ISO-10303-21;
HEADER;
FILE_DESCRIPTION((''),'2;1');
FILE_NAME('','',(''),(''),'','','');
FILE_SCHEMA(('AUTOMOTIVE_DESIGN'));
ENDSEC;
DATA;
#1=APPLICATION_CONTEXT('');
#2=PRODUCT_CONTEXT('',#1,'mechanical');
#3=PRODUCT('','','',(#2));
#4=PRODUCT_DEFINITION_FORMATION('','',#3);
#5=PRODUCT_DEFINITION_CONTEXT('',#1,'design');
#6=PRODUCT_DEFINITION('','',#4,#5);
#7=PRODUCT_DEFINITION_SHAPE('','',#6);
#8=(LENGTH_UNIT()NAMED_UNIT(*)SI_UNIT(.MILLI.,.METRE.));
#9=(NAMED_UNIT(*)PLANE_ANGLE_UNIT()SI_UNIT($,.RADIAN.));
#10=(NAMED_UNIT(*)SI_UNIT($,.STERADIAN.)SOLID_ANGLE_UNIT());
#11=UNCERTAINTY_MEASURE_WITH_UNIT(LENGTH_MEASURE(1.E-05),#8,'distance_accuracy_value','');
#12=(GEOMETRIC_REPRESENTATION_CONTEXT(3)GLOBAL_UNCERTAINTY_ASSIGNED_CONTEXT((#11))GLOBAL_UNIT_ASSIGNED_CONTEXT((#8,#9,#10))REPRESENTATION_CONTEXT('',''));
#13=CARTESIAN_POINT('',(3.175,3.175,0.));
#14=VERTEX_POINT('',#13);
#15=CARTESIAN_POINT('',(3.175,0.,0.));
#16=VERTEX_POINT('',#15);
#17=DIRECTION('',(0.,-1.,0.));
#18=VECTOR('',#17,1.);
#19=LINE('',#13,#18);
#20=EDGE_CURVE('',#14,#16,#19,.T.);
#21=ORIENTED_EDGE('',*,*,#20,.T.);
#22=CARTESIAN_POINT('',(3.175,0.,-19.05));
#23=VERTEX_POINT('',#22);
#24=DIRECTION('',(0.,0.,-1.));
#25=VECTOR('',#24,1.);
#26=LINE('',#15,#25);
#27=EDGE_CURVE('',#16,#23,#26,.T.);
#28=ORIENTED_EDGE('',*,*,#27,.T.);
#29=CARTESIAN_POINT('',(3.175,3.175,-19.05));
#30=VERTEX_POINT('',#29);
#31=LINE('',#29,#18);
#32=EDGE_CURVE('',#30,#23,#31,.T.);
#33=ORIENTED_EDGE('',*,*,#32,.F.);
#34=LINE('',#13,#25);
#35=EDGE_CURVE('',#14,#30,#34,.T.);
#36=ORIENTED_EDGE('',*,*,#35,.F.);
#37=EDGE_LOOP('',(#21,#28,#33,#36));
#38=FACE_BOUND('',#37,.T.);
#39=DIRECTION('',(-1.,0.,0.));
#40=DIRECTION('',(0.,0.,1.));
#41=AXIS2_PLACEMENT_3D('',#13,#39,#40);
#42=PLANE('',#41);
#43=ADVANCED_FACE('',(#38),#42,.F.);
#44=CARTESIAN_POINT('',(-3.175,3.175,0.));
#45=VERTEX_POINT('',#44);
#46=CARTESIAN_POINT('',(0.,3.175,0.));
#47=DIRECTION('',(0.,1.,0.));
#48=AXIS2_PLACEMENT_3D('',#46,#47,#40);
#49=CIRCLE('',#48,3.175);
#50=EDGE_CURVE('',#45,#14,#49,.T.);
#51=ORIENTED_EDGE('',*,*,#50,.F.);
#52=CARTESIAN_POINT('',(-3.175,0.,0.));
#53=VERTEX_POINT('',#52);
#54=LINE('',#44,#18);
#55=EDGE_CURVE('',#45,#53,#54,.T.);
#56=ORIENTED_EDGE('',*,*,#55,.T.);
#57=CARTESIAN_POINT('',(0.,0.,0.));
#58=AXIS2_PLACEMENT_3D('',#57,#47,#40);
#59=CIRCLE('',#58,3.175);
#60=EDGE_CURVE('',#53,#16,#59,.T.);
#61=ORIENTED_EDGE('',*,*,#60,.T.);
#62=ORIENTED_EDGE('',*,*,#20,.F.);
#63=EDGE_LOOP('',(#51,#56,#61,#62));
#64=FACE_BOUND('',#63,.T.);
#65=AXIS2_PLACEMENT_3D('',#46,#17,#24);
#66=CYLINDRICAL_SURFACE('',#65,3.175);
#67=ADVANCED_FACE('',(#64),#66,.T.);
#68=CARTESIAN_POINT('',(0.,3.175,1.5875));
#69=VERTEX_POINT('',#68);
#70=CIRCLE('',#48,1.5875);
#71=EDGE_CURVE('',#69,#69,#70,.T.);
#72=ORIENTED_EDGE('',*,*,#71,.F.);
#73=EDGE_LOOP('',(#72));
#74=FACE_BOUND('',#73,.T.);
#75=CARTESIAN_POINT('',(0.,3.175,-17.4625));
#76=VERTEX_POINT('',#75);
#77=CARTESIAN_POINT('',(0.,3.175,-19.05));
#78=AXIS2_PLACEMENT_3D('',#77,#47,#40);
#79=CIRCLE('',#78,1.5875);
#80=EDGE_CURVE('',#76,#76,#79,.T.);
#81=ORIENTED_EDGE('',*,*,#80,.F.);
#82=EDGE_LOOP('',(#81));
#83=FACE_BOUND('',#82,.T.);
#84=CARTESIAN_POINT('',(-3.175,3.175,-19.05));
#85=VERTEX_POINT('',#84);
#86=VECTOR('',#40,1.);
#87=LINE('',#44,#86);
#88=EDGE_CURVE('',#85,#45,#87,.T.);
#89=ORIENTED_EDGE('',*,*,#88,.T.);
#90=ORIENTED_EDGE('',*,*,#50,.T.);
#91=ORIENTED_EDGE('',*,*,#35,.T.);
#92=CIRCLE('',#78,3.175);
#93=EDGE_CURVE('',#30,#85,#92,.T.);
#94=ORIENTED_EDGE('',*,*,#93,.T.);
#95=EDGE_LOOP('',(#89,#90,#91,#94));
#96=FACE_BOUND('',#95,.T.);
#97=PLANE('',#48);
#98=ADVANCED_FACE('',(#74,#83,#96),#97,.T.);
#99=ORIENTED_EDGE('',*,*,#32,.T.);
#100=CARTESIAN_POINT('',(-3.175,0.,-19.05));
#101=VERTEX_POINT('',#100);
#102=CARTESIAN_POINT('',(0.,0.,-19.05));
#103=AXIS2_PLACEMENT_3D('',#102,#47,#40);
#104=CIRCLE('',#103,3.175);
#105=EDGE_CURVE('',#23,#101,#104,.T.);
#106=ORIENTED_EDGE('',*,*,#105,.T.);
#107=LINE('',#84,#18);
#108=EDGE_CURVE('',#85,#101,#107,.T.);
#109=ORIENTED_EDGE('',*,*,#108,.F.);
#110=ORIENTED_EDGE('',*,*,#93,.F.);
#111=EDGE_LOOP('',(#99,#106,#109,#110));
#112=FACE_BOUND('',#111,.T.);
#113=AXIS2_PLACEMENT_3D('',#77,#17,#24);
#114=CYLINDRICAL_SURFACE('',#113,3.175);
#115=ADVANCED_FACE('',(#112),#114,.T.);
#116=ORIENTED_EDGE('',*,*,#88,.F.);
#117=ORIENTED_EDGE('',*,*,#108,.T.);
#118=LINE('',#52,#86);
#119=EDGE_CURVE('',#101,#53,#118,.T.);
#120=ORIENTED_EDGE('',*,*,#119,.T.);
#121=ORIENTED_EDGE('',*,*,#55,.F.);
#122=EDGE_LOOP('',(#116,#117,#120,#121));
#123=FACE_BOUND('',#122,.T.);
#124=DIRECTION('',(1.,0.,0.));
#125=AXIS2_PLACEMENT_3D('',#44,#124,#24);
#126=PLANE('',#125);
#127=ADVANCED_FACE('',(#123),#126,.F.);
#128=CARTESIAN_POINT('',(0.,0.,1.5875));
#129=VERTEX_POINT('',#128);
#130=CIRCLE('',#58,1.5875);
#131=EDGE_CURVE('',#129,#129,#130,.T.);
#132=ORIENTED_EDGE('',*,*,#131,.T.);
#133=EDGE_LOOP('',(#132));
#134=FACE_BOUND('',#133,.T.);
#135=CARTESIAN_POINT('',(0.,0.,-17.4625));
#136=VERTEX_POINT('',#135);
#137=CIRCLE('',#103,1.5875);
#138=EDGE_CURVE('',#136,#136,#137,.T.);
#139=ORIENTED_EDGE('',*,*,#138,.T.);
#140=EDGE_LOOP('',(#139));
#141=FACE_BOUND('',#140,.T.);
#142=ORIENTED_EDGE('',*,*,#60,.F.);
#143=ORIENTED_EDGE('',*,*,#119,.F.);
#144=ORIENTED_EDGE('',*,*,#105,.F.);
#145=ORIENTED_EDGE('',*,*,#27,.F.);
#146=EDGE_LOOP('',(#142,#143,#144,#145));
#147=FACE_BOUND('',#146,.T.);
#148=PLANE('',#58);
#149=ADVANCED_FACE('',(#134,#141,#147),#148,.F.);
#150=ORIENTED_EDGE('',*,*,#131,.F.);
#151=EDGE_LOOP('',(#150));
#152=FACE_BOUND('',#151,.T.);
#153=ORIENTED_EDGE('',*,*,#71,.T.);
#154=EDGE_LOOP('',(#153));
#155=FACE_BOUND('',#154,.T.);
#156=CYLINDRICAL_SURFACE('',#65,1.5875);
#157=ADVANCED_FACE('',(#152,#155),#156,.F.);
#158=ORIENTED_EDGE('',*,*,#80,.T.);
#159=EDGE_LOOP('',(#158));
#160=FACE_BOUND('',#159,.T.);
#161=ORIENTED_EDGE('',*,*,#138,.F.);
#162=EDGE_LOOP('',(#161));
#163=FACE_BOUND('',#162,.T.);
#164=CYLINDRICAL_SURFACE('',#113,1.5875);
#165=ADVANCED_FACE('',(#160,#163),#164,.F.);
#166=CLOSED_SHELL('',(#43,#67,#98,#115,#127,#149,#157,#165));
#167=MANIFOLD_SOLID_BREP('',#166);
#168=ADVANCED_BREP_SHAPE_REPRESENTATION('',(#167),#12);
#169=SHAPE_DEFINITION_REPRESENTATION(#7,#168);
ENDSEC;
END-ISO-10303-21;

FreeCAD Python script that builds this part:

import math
import FreeCAD as App
import Part
import Sketcher

V = App.Vector
Q = App.Units.Quantity

doc = App.newDocument("Part")
body = doc.addObject("PartDesign::Body", "Body")

sketch1 = body.newObject("Sketcher::SketchObject", "Sketch")
sketch1.AttachmentSupport = (doc.getObject("XZ_Plane"), [""])
sketch1.MapMode = "FlatFace"
sketch1.addGeometry([
    Part.LineSegment(V(-3.175, -19.05, 0), V(-3.175, 0, 0)),
    Part.ArcOfCircle(Part.Circle(V(0, 0, 0), V(0, 0, 1), 3.175), math.radians(0), math.radians(180)),
    Part.LineSegment(V(3.175, 0, 0), V(3.175, -19.05, 0)),
    Part.ArcOfCircle(Part.Circle(V(0, -19.05, 0), V(0, 0, 1), 3.175), math.radians(180), math.radians(360)),
    Part.Circle(V(0, 0, 0), V(0, 0, 1), 1.5875),
    Part.Circle(V(0, -19.05, 0), V(0, 0, 1), 1.5875),
], False)
sketch1.addConstraint([
    Sketcher.Constraint("Tangent", 0, 2, 1, 2),
    Sketcher.Constraint("Tangent", 1, 1, 2, 1),
    Sketcher.Constraint("Tangent", 2, 2, 3, 2),
    Sketcher.Constraint("Tangent", 3, 1, 0, 1),
    Sketcher.Constraint("Vertical", 0),
    Sketcher.Constraint("Vertical", 2),
    Sketcher.Constraint("Coincident", 1, 3, -1, 1),
    Sketcher.Constraint("Coincident", 4, 3, -1, 1),
    Sketcher.Constraint("Coincident", 5, 3, 3, 3),
    Sketcher.Constraint("Equal", 4, 5),
    Sketcher.Constraint("Diameter", 4, Q("0.125 in")),
    Sketcher.Constraint("Radius", 1, Q("0.125 in")),
    Sketcher.Constraint("DistanceY", 0, 1, 0, 2, Q("0.75 in")),
])
pad1 = body.newObject("PartDesign::Pad", "Pad")
pad1.Profile = sketch1
pad1.Length = Q("0.125 in")
pad1.Reversed = True

doc.recompute()
